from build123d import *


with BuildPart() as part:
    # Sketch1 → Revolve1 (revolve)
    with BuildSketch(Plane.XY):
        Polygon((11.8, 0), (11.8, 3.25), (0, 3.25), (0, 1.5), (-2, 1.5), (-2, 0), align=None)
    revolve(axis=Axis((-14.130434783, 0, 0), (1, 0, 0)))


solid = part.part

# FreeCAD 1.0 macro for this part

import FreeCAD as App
import Part
import Sketcher

V = App.Vector
Q = App.Units.Quantity


def add_polygon(sketch, points):
    """Adds a closed chain of lines whose ends are joined by coincident constraints."""
    first, n = sketch.GeometryCount, len(points)
    for a, b in zip(points, points[1:] + points[:1]):
        sketch.addGeometry(Part.LineSegment(App.Vector(*a, 0), App.Vector(*b, 0)), False)
    for i in range(n):
        sketch.addConstraint(Sketcher.Constraint("Coincident", first + i, 2, first + (i + 1) % n, 1))

doc = App.newDocument("Part")
body = doc.addObject("PartDesign::Body", "Body")

# Sketch on XY plane
sketch1 = body.newObject("Sketcher::SketchObject", "Sketch")
sketch1.AttachmentSupport = (doc.getObject("XY_Plane"), [""])
sketch1.MapMode = "FlatFace"
add_polygon(sketch1, [(11.8, 0), (11.8, 3.2), (0, 3.2), (0, 1.5), (-2, 1.5), (-2, 0)])  # lines 0-5
sketch1.addConstraint([
    Sketcher.Constraint("Vertical", 0),
    Sketcher.Constraint("Horizontal", 1),
    Sketcher.Constraint("Vertical", 2),
    Sketcher.Constraint("Horizontal", 3),
    Sketcher.Constraint("Vertical", 4),
    Sketcher.Constraint("Horizontal", 5),
    Sketcher.Constraint("PointOnObject", 1, 2, -2),
    Sketcher.Constraint("PointOnObject", 4, 2, -1),
    Sketcher.Constraint("DistanceX", 3, 2, 3, 1, Q("2 mm")),
    Sketcher.Constraint("DistanceX", 1, 2, 1, 1, Q("11.8 mm")),
    Sketcher.Constraint("DistanceY", 4, 2, 4, 1, Q("1.5 mm")),
    Sketcher.Constraint("DistanceY", 0, 1, 0, 2, Q("3.25 mm")),
])
revolution = body.newObject("PartDesign::Revolution", "Revolution")
revolution.Profile = sketch1
revolution.ReferenceAxis = (sketch1, ["H_Axis"])
revolution.Angle = 360

doc.recompute()
